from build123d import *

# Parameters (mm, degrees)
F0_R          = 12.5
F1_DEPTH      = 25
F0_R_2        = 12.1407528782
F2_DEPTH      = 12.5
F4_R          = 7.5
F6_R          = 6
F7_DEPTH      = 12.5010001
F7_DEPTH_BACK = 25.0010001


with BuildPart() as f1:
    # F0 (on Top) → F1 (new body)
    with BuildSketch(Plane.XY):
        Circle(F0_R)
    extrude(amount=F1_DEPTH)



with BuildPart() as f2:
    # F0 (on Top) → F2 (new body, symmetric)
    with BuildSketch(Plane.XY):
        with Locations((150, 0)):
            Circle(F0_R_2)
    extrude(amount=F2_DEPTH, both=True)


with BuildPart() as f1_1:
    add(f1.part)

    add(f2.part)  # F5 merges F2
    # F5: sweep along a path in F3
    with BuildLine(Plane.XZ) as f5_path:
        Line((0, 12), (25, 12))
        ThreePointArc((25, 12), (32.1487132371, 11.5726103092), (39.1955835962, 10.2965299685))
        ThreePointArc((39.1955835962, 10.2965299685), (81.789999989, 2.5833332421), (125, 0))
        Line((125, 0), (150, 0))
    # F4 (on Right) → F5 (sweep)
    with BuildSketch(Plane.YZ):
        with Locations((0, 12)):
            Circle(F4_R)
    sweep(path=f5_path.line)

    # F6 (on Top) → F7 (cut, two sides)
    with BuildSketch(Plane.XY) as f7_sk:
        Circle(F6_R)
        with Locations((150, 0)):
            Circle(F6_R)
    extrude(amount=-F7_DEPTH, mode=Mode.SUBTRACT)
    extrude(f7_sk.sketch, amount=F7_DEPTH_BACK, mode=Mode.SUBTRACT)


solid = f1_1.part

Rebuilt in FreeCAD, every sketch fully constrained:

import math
import FreeCAD as App
import Part
import Sketcher

doc = App.newDocument("Part")
body = doc.addObject("PartDesign::Body", "Body")

# Sketch on XY plane
sketch1 = body.newObject("Sketcher::SketchObject", "Sketch")
sketch1.AttachmentSupport = (doc.getObject("XY_Plane"), [""])
sketch1.MapMode = "FlatFace"
sketch1.addGeometry(Part.Circle(App.Vector(0, 0, 0), App.Vector(0, 0, 1), 12), False)
sketch1.addConstraint(Sketcher.Constraint("Coincident", 0, 3, -1, 1))
sketch1.addConstraint(Sketcher.Constraint("Diameter", 0, 25.0))
pad1 = body.newObject("PartDesign::Pad", "Pad")
pad1.Profile = sketch1
pad1.Length = 25
body2 = doc.addObject("PartDesign::Body", "Body001")

# Sketch on XY plane
sketch2 = body2.newObject("Sketcher::SketchObject", "Sketch001")
sketch2.AttachmentSupport = (doc.getObject("XY_Plane001"), [""])
sketch2.MapMode = "FlatFace"
sketch2.addGeometry(Part.Circle(App.Vector(150, 0, 0), App.Vector(0, 0, 1), 12), False)
sketch2.addConstraint(Sketcher.Constraint("PointOnObject", 0, 3, -1))
sketch2.addConstraint(Sketcher.Constraint("DistanceX", -1, 1, 0, 3, 150.0))
sketch2.addConstraint(Sketcher.Constraint("Diameter", 0, 24.281506))
pad2 = body2.newObject("PartDesign::Pad", "Pad001")
pad2.Profile = sketch2
pad2.Length = 25
pad2.Midplane = True
body.AllowCompound = True
doc.recompute()

boolean = body.newObject("PartDesign::Boolean", "Boolean")
boolean.Type = "Fuse"
boolean.addObjects([body2])

# Sketch on YZ plane
sketch3 = body.newObject("Sketcher::SketchObject", "Sketch002")
sketch3.AttachmentSupport = (doc.getObject("YZ_Plane"), [""])
sketch3.MapMode = "FlatFace"
sketch3.addGeometry(Part.Circle(App.Vector(0, 12, 0), App.Vector(0, 0, 1), 8), False)
sketch3.addConstraint(Sketcher.Constraint("PointOnObject", 0, 3, -2))
sketch3.addConstraint(Sketcher.Constraint("Diameter", 0, 15.0))
sketch3.addConstraint(Sketcher.Constraint("DistanceY", -1, 1, 0, 3, 12.0))

# Sketch on XZ plane
sketch4 = body.newObject("Sketcher::SketchObject", "Sketch003")
sketch4.AttachmentSupport = (doc.getObject("XZ_Plane"), [""])
sketch4.MapMode = "FlatFace"
sketch4.addGeometry(Part.LineSegment(App.Vector(0, 12, 0), App.Vector(25, 12, 0)), False)
sketch4.addGeometry(Part.ArcOfCircle(Part.Circle(App.Vector(25, -48, 0), App.Vector(0, 0, 1), 60), math.radians(76.31), math.radians(90)), False)
sketch4.addGeometry(Part.ArcOfCircle(Part.Circle(App.Vector(125, 363, 0), App.Vector(0, 0, 1), 363), math.radians(-103.69), math.radians(-90)), False)
sketch4.addGeometry(Part.LineSegment(App.Vector(125, 0, 0), App.Vector(150, 0, 0)), False)
sketch4.addConstraint(Sketcher.Constraint("Tangent", 0, 2, 1, 2))
sketch4.addConstraint(Sketcher.Constraint("Tangent", 1, 1, 2, 1))
sketch4.addConstraint(Sketcher.Constraint("Tangent", 2, 2, 3, 1))
sketch4.addConstraint(Sketcher.Constraint("Horizontal", 0))
sketch4.addConstraint(Sketcher.Constraint("Horizontal", 3))
sketch4.addConstraint(Sketcher.Constraint("PointOnObject", 0, 1, -2))
sketch4.addConstraint(Sketcher.Constraint("PointOnObject", 2, 2, -1))
sketch4.addConstraint(Sketcher.Constraint("Equal", 0, 3))
sketch4.addConstraint(Sketcher.Constraint("Radius", 1, 60.0))
sketch4.addConstraint(Sketcher.Constraint("DistanceX", 0, 1, 0, 2, 25.0))
sketch4.addConstraint(Sketcher.Constraint("DistanceY", 1, 3, -1, 1, 48.0))
sketch4.addConstraint(Sketcher.Constraint("DistanceX", -1, 1, 2, 3, 125.0))
doc.recompute()

additivepipe = body.newObject("PartDesign::AdditivePipe", "AdditivePipe")
additivepipe.Profile = sketch3
additivepipe.Spine = (sketch4, ["Edge1", "Edge2", "Edge3", "Edge4"])

# Sketch on XY plane
sketch5 = body.newObject("Sketcher::SketchObject", "Sketch004")
sketch5.AttachmentSupport = (doc.getObject("XY_Plane"), [""])
sketch5.MapMode = "FlatFace"
sketch5.addGeometry(Part.Circle(App.Vector(0, 0, 0), App.Vector(0, 0, 1), 6), False)
sketch5.addGeometry(Part.Circle(App.Vector(150, 0, 0), App.Vector(0, 0, 1), 6), False)
sketch5.addConstraint(Sketcher.Constraint("Coincident", 0, 3, -1, 1))
sketch5.addConstraint(Sketcher.Constraint("Equal", 0, 1))
sketch5.addConstraint(Sketcher.Constraint("PointOnObject", 1, 3, -1))
sketch5.addConstraint(Sketcher.Constraint("Diameter", 0, 12.0))
sketch5.addConstraint(Sketcher.Constraint("DistanceX", -1, 1, 1, 3, 150.0))
pocket1 = body.newObject("PartDesign::Pocket", "Pocket")
pocket1.Profile = sketch5
pocket1.Type = "ThroughAll"
pocket1.Midplane = True

doc.recompute()
